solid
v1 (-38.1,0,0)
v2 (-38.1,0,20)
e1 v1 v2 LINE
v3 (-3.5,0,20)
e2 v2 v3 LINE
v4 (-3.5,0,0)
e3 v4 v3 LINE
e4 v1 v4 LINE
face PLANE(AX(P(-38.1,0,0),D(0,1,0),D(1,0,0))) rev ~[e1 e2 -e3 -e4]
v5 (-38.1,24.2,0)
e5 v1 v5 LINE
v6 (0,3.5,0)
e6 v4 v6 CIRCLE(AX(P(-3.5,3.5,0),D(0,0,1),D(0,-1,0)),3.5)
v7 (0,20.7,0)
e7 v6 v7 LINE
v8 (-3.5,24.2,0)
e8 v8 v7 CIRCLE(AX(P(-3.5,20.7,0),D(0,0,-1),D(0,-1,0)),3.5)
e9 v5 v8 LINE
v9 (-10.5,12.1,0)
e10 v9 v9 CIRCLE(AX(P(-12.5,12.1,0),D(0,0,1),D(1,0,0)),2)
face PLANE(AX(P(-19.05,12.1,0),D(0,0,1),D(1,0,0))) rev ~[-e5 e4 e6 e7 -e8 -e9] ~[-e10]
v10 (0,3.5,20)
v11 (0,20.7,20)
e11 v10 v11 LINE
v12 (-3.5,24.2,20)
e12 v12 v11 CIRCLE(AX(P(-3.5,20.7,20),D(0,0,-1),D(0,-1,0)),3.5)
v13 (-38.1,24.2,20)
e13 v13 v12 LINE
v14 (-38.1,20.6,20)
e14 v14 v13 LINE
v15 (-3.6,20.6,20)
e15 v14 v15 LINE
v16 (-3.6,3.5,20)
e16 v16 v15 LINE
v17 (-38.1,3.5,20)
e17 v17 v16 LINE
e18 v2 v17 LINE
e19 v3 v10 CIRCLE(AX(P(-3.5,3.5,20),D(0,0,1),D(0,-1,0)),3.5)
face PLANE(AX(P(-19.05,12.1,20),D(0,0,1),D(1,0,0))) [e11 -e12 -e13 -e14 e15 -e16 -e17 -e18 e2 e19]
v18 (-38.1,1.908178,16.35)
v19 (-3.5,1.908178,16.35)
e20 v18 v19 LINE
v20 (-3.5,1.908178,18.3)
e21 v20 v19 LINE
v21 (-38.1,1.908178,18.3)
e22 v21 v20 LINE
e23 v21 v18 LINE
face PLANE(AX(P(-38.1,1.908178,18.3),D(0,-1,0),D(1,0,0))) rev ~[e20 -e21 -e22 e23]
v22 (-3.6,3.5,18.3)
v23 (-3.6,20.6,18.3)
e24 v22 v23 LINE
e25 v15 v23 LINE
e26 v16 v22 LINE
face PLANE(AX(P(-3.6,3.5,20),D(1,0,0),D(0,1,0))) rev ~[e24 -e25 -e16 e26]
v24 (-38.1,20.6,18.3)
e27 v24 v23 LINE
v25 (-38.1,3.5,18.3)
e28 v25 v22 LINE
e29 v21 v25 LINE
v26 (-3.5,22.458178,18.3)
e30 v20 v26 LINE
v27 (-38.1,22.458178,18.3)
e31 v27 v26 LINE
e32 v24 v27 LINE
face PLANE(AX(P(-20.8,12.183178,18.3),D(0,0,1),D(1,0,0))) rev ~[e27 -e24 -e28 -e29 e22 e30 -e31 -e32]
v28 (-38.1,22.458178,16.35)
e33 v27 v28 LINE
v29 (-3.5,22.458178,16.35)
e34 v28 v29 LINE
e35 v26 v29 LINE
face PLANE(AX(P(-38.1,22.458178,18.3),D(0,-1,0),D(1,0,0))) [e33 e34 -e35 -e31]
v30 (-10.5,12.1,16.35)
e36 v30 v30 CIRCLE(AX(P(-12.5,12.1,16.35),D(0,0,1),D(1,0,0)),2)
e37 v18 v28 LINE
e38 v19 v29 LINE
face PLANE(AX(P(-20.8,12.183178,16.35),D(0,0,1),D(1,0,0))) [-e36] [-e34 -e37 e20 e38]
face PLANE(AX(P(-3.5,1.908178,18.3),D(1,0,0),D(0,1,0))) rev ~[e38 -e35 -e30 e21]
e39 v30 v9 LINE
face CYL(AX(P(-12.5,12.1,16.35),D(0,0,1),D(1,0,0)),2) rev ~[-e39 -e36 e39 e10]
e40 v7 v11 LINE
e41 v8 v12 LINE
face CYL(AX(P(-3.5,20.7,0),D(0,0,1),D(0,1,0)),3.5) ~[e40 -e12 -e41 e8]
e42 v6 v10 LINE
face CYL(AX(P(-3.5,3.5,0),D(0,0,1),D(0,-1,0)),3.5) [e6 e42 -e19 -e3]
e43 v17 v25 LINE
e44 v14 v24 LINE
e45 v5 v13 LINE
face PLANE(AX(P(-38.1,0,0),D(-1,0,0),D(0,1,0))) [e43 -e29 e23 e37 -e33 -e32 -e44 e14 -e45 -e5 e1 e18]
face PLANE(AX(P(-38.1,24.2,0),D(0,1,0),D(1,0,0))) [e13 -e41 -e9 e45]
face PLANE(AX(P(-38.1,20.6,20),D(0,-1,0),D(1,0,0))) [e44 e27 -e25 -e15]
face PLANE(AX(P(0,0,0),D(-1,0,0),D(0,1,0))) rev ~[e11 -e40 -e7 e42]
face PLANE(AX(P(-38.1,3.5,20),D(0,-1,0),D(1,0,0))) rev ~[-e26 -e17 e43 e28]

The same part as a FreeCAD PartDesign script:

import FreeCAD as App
import Part
import Sketcher

V = App.Vector


def edges_at(feature, points):
    """Names of the edges that pass closest to the given points."""
    edges = feature.Shape.Edges
    near = lambda p: min(range(len(edges)), key=lambda i: edges[i].distToShape(Part.Vertex(*p))[0])
    return sorted({f"Edge{near(p) + 1}" for p in points})

doc = App.newDocument("Part")
body = doc.addObject("PartDesign::Body", "Body")

# Sketch on XY plane
sketch1 = doc.addObject("Sketcher::SketchObject", "Sketch")
body.addObject(sketch1)
sketch1.AttachmentSupport = (doc.XY_Plane, [""])
sketch1.MapMode = "FlatFace"
sketch1.addGeometry([
    Part.LineSegment(V(-38, 24, 0), V(-38, 0, 0)),
    Part.LineSegment(V(-38, 0, 0), V(0, 0, 0)),
    Part.LineSegment(V(0, 0, 0), V(0, 24, 0)),
    Part.LineSegment(V(0, 24, 0), V(-38, 24, 0)),
], False)
sketch1.addConstraint([
    Sketcher.Constraint("Coincident", 0, 2, 1, 1),
    Sketcher.Constraint("Coincident", 1, 2, 2, 1),
    Sketcher.Constraint("Coincident", 2, 2, 3, 1),
    Sketcher.Constraint("Coincident", 3, 2, 0, 1),
    Sketcher.Constraint("Vertical", 0),
    Sketcher.Constraint("Horizontal", 1),
    Sketcher.Constraint("Vertical", 2),
    Sketcher.Constraint("Horizontal", 3),
    Sketcher.Constraint("Coincident", 1, 2, -1, 1),
    Sketcher.Constraint("DistanceX", 1, 1, 1, 2, 38.1),
    Sketcher.Constraint("DistanceY", 0, 2, 0, 1, 24.2),
])
pad1 = doc.addObject("PartDesign::Pad", "Pad")
body.addObject(pad1)
pad1.Profile = sketch1
pad1.Length = 20

# Sketch on XY plane
sketch2 = doc.addObject("Sketcher::SketchObject", "Sketch001")
body.addObject(sketch2)
sketch2.AttachmentSupport = (doc.XY_Plane, [""])
sketch2.MapMode = "FlatFace"
sketch2.AttachmentOffset = App.Placement(V(0, 0, 20), App.Rotation())
sketch2.addGeometry([
    Part.LineSegment(V(-38, 21, 0), V(-38, 4, 0)),
    Part.LineSegment(V(-38, 4, 0), V(-4, 4, 0)),
    Part.LineSegment(V(-4, 4, 0), V(-4, 21, 0)),
    Part.LineSegment(V(-4, 21, 0), V(-38, 21, 0)),
], False)
sketch2.addConstraint([
    Sketcher.Constraint("Coincident", 0, 2, 1, 1),
    Sketcher.Constraint("Coincident", 1, 2, 2, 1),
    Sketcher.Constraint("Coincident", 2, 2, 3, 1),
    Sketcher.Constraint("Coincident", 3, 2, 0, 1),
    Sketcher.Constraint("Vertical", 0),
    Sketcher.Constraint("Horizontal", 1),
    Sketcher.Constraint("Vertical", 2),
    Sketcher.Constraint("Horizontal", 3),
    Sketcher.Constraint("DistanceX", 1, 1, 1, 2, 34.5),
    Sketcher.Constraint("DistanceY", 0, 2, 0, 1, 17.1),
    Sketcher.Constraint("DistanceX", 0, 2, -1, 1, 38.1),
    Sketcher.Constraint("DistanceY", -1, 1, 0, 2, 3.5),
])
pocket1 = doc.addObject("PartDesign::Pocket", "Pocket")
body.addObject(pocket1)
pocket1.Profile = sketch2
pocket1.Length = 1.7

# Sketch on XY plane
sketch3 = doc.addObject("Sketcher::SketchObject", "Sketch002")
body.addObject(sketch3)
sketch3.AttachmentSupport = (doc.XY_Plane, [""])
sketch3.MapMode = "FlatFace"
sketch3.AttachmentOffset = App.Placement(V(0, 0, 18.3), App.Rotation())
sketch3.addGeometry([
    Part.LineSegment(V(-38, 22, 0), V(-38, 2, 0)),
    Part.LineSegment(V(-38, 2, 0), V(-4, 2, 0)),
    Part.LineSegment(V(-4, 2, 0), V(-4, 22, 0)),
    Part.LineSegment(V(-4, 22, 0), V(-38, 22, 0)),
], False)
sketch3.addConstraint([
    Sketcher.Constraint("Coincident", 0, 2, 1, 1),
    Sketcher.Constraint("Coincident", 1, 2, 2, 1),
    Sketcher.Constraint("Coincident", 2, 2, 3, 1),
    Sketcher.Constraint("Coincident", 3, 2, 0, 1),
    Sketcher.Constraint("Vertical", 0),
    Sketcher.Constraint("Horizontal", 1),
    Sketcher.Constraint("Vertical", 2),
    Sketcher.Constraint("Horizontal", 3),
    Sketcher.Constraint("DistanceX", 1, 1, 1, 2, 34.6),
    Sketcher.Constraint("DistanceY", 0, 2, 0, 1, 20.55),
    Sketcher.Constraint("DistanceX", 0, 2, -1, 1, 38.1),
    Sketcher.Constraint("DistanceY", -1, 1, 0, 2, 1.908178),
])
pocket2 = doc.addObject("PartDesign::Pocket", "Pocket001")
body.addObject(pocket2)
pocket2.Profile = sketch3
pocket2.Length = 1.95
doc.recompute()

fillet = doc.addObject("PartDesign::Fillet", "Fillet")
body.addObject(fillet)
fillet.Base = (pocket2, edges_at(pocket2, [(0, 24.2, 10), (0, 0, 10)]))
fillet.Radius = 3.5

# Sketch on XY plane
sketch4 = doc.addObject("Sketcher::SketchObject", "Sketch003")
body.addObject(sketch4)
sketch4.AttachmentSupport = (doc.XY_Plane, [""])
sketch4.MapMode = "FlatFace"
sketch4.AttachmentOffset = App.Placement(V(0, 0, 16.35), App.Rotation())
sketch4.addGeometry(Part.Circle(V(-12.5, 12.1, 0), V(0, 0, 1), 2), False)
sketch4.addConstraint([
    Sketcher.Constraint("Diameter", 0, 4.0),
    Sketcher.Constraint("DistanceX", 0, 3, -1, 1, 12.5),
    Sketcher.Constraint("DistanceY", -1, 1, 0, 3, 12.1),
])
pocket3 = doc.addObject("PartDesign::Pocket", "Pocket002")
body.addObject(pocket3)
pocket3.Profile = sketch4
pocket3.Type = "ThroughAll"

doc.recompute()
